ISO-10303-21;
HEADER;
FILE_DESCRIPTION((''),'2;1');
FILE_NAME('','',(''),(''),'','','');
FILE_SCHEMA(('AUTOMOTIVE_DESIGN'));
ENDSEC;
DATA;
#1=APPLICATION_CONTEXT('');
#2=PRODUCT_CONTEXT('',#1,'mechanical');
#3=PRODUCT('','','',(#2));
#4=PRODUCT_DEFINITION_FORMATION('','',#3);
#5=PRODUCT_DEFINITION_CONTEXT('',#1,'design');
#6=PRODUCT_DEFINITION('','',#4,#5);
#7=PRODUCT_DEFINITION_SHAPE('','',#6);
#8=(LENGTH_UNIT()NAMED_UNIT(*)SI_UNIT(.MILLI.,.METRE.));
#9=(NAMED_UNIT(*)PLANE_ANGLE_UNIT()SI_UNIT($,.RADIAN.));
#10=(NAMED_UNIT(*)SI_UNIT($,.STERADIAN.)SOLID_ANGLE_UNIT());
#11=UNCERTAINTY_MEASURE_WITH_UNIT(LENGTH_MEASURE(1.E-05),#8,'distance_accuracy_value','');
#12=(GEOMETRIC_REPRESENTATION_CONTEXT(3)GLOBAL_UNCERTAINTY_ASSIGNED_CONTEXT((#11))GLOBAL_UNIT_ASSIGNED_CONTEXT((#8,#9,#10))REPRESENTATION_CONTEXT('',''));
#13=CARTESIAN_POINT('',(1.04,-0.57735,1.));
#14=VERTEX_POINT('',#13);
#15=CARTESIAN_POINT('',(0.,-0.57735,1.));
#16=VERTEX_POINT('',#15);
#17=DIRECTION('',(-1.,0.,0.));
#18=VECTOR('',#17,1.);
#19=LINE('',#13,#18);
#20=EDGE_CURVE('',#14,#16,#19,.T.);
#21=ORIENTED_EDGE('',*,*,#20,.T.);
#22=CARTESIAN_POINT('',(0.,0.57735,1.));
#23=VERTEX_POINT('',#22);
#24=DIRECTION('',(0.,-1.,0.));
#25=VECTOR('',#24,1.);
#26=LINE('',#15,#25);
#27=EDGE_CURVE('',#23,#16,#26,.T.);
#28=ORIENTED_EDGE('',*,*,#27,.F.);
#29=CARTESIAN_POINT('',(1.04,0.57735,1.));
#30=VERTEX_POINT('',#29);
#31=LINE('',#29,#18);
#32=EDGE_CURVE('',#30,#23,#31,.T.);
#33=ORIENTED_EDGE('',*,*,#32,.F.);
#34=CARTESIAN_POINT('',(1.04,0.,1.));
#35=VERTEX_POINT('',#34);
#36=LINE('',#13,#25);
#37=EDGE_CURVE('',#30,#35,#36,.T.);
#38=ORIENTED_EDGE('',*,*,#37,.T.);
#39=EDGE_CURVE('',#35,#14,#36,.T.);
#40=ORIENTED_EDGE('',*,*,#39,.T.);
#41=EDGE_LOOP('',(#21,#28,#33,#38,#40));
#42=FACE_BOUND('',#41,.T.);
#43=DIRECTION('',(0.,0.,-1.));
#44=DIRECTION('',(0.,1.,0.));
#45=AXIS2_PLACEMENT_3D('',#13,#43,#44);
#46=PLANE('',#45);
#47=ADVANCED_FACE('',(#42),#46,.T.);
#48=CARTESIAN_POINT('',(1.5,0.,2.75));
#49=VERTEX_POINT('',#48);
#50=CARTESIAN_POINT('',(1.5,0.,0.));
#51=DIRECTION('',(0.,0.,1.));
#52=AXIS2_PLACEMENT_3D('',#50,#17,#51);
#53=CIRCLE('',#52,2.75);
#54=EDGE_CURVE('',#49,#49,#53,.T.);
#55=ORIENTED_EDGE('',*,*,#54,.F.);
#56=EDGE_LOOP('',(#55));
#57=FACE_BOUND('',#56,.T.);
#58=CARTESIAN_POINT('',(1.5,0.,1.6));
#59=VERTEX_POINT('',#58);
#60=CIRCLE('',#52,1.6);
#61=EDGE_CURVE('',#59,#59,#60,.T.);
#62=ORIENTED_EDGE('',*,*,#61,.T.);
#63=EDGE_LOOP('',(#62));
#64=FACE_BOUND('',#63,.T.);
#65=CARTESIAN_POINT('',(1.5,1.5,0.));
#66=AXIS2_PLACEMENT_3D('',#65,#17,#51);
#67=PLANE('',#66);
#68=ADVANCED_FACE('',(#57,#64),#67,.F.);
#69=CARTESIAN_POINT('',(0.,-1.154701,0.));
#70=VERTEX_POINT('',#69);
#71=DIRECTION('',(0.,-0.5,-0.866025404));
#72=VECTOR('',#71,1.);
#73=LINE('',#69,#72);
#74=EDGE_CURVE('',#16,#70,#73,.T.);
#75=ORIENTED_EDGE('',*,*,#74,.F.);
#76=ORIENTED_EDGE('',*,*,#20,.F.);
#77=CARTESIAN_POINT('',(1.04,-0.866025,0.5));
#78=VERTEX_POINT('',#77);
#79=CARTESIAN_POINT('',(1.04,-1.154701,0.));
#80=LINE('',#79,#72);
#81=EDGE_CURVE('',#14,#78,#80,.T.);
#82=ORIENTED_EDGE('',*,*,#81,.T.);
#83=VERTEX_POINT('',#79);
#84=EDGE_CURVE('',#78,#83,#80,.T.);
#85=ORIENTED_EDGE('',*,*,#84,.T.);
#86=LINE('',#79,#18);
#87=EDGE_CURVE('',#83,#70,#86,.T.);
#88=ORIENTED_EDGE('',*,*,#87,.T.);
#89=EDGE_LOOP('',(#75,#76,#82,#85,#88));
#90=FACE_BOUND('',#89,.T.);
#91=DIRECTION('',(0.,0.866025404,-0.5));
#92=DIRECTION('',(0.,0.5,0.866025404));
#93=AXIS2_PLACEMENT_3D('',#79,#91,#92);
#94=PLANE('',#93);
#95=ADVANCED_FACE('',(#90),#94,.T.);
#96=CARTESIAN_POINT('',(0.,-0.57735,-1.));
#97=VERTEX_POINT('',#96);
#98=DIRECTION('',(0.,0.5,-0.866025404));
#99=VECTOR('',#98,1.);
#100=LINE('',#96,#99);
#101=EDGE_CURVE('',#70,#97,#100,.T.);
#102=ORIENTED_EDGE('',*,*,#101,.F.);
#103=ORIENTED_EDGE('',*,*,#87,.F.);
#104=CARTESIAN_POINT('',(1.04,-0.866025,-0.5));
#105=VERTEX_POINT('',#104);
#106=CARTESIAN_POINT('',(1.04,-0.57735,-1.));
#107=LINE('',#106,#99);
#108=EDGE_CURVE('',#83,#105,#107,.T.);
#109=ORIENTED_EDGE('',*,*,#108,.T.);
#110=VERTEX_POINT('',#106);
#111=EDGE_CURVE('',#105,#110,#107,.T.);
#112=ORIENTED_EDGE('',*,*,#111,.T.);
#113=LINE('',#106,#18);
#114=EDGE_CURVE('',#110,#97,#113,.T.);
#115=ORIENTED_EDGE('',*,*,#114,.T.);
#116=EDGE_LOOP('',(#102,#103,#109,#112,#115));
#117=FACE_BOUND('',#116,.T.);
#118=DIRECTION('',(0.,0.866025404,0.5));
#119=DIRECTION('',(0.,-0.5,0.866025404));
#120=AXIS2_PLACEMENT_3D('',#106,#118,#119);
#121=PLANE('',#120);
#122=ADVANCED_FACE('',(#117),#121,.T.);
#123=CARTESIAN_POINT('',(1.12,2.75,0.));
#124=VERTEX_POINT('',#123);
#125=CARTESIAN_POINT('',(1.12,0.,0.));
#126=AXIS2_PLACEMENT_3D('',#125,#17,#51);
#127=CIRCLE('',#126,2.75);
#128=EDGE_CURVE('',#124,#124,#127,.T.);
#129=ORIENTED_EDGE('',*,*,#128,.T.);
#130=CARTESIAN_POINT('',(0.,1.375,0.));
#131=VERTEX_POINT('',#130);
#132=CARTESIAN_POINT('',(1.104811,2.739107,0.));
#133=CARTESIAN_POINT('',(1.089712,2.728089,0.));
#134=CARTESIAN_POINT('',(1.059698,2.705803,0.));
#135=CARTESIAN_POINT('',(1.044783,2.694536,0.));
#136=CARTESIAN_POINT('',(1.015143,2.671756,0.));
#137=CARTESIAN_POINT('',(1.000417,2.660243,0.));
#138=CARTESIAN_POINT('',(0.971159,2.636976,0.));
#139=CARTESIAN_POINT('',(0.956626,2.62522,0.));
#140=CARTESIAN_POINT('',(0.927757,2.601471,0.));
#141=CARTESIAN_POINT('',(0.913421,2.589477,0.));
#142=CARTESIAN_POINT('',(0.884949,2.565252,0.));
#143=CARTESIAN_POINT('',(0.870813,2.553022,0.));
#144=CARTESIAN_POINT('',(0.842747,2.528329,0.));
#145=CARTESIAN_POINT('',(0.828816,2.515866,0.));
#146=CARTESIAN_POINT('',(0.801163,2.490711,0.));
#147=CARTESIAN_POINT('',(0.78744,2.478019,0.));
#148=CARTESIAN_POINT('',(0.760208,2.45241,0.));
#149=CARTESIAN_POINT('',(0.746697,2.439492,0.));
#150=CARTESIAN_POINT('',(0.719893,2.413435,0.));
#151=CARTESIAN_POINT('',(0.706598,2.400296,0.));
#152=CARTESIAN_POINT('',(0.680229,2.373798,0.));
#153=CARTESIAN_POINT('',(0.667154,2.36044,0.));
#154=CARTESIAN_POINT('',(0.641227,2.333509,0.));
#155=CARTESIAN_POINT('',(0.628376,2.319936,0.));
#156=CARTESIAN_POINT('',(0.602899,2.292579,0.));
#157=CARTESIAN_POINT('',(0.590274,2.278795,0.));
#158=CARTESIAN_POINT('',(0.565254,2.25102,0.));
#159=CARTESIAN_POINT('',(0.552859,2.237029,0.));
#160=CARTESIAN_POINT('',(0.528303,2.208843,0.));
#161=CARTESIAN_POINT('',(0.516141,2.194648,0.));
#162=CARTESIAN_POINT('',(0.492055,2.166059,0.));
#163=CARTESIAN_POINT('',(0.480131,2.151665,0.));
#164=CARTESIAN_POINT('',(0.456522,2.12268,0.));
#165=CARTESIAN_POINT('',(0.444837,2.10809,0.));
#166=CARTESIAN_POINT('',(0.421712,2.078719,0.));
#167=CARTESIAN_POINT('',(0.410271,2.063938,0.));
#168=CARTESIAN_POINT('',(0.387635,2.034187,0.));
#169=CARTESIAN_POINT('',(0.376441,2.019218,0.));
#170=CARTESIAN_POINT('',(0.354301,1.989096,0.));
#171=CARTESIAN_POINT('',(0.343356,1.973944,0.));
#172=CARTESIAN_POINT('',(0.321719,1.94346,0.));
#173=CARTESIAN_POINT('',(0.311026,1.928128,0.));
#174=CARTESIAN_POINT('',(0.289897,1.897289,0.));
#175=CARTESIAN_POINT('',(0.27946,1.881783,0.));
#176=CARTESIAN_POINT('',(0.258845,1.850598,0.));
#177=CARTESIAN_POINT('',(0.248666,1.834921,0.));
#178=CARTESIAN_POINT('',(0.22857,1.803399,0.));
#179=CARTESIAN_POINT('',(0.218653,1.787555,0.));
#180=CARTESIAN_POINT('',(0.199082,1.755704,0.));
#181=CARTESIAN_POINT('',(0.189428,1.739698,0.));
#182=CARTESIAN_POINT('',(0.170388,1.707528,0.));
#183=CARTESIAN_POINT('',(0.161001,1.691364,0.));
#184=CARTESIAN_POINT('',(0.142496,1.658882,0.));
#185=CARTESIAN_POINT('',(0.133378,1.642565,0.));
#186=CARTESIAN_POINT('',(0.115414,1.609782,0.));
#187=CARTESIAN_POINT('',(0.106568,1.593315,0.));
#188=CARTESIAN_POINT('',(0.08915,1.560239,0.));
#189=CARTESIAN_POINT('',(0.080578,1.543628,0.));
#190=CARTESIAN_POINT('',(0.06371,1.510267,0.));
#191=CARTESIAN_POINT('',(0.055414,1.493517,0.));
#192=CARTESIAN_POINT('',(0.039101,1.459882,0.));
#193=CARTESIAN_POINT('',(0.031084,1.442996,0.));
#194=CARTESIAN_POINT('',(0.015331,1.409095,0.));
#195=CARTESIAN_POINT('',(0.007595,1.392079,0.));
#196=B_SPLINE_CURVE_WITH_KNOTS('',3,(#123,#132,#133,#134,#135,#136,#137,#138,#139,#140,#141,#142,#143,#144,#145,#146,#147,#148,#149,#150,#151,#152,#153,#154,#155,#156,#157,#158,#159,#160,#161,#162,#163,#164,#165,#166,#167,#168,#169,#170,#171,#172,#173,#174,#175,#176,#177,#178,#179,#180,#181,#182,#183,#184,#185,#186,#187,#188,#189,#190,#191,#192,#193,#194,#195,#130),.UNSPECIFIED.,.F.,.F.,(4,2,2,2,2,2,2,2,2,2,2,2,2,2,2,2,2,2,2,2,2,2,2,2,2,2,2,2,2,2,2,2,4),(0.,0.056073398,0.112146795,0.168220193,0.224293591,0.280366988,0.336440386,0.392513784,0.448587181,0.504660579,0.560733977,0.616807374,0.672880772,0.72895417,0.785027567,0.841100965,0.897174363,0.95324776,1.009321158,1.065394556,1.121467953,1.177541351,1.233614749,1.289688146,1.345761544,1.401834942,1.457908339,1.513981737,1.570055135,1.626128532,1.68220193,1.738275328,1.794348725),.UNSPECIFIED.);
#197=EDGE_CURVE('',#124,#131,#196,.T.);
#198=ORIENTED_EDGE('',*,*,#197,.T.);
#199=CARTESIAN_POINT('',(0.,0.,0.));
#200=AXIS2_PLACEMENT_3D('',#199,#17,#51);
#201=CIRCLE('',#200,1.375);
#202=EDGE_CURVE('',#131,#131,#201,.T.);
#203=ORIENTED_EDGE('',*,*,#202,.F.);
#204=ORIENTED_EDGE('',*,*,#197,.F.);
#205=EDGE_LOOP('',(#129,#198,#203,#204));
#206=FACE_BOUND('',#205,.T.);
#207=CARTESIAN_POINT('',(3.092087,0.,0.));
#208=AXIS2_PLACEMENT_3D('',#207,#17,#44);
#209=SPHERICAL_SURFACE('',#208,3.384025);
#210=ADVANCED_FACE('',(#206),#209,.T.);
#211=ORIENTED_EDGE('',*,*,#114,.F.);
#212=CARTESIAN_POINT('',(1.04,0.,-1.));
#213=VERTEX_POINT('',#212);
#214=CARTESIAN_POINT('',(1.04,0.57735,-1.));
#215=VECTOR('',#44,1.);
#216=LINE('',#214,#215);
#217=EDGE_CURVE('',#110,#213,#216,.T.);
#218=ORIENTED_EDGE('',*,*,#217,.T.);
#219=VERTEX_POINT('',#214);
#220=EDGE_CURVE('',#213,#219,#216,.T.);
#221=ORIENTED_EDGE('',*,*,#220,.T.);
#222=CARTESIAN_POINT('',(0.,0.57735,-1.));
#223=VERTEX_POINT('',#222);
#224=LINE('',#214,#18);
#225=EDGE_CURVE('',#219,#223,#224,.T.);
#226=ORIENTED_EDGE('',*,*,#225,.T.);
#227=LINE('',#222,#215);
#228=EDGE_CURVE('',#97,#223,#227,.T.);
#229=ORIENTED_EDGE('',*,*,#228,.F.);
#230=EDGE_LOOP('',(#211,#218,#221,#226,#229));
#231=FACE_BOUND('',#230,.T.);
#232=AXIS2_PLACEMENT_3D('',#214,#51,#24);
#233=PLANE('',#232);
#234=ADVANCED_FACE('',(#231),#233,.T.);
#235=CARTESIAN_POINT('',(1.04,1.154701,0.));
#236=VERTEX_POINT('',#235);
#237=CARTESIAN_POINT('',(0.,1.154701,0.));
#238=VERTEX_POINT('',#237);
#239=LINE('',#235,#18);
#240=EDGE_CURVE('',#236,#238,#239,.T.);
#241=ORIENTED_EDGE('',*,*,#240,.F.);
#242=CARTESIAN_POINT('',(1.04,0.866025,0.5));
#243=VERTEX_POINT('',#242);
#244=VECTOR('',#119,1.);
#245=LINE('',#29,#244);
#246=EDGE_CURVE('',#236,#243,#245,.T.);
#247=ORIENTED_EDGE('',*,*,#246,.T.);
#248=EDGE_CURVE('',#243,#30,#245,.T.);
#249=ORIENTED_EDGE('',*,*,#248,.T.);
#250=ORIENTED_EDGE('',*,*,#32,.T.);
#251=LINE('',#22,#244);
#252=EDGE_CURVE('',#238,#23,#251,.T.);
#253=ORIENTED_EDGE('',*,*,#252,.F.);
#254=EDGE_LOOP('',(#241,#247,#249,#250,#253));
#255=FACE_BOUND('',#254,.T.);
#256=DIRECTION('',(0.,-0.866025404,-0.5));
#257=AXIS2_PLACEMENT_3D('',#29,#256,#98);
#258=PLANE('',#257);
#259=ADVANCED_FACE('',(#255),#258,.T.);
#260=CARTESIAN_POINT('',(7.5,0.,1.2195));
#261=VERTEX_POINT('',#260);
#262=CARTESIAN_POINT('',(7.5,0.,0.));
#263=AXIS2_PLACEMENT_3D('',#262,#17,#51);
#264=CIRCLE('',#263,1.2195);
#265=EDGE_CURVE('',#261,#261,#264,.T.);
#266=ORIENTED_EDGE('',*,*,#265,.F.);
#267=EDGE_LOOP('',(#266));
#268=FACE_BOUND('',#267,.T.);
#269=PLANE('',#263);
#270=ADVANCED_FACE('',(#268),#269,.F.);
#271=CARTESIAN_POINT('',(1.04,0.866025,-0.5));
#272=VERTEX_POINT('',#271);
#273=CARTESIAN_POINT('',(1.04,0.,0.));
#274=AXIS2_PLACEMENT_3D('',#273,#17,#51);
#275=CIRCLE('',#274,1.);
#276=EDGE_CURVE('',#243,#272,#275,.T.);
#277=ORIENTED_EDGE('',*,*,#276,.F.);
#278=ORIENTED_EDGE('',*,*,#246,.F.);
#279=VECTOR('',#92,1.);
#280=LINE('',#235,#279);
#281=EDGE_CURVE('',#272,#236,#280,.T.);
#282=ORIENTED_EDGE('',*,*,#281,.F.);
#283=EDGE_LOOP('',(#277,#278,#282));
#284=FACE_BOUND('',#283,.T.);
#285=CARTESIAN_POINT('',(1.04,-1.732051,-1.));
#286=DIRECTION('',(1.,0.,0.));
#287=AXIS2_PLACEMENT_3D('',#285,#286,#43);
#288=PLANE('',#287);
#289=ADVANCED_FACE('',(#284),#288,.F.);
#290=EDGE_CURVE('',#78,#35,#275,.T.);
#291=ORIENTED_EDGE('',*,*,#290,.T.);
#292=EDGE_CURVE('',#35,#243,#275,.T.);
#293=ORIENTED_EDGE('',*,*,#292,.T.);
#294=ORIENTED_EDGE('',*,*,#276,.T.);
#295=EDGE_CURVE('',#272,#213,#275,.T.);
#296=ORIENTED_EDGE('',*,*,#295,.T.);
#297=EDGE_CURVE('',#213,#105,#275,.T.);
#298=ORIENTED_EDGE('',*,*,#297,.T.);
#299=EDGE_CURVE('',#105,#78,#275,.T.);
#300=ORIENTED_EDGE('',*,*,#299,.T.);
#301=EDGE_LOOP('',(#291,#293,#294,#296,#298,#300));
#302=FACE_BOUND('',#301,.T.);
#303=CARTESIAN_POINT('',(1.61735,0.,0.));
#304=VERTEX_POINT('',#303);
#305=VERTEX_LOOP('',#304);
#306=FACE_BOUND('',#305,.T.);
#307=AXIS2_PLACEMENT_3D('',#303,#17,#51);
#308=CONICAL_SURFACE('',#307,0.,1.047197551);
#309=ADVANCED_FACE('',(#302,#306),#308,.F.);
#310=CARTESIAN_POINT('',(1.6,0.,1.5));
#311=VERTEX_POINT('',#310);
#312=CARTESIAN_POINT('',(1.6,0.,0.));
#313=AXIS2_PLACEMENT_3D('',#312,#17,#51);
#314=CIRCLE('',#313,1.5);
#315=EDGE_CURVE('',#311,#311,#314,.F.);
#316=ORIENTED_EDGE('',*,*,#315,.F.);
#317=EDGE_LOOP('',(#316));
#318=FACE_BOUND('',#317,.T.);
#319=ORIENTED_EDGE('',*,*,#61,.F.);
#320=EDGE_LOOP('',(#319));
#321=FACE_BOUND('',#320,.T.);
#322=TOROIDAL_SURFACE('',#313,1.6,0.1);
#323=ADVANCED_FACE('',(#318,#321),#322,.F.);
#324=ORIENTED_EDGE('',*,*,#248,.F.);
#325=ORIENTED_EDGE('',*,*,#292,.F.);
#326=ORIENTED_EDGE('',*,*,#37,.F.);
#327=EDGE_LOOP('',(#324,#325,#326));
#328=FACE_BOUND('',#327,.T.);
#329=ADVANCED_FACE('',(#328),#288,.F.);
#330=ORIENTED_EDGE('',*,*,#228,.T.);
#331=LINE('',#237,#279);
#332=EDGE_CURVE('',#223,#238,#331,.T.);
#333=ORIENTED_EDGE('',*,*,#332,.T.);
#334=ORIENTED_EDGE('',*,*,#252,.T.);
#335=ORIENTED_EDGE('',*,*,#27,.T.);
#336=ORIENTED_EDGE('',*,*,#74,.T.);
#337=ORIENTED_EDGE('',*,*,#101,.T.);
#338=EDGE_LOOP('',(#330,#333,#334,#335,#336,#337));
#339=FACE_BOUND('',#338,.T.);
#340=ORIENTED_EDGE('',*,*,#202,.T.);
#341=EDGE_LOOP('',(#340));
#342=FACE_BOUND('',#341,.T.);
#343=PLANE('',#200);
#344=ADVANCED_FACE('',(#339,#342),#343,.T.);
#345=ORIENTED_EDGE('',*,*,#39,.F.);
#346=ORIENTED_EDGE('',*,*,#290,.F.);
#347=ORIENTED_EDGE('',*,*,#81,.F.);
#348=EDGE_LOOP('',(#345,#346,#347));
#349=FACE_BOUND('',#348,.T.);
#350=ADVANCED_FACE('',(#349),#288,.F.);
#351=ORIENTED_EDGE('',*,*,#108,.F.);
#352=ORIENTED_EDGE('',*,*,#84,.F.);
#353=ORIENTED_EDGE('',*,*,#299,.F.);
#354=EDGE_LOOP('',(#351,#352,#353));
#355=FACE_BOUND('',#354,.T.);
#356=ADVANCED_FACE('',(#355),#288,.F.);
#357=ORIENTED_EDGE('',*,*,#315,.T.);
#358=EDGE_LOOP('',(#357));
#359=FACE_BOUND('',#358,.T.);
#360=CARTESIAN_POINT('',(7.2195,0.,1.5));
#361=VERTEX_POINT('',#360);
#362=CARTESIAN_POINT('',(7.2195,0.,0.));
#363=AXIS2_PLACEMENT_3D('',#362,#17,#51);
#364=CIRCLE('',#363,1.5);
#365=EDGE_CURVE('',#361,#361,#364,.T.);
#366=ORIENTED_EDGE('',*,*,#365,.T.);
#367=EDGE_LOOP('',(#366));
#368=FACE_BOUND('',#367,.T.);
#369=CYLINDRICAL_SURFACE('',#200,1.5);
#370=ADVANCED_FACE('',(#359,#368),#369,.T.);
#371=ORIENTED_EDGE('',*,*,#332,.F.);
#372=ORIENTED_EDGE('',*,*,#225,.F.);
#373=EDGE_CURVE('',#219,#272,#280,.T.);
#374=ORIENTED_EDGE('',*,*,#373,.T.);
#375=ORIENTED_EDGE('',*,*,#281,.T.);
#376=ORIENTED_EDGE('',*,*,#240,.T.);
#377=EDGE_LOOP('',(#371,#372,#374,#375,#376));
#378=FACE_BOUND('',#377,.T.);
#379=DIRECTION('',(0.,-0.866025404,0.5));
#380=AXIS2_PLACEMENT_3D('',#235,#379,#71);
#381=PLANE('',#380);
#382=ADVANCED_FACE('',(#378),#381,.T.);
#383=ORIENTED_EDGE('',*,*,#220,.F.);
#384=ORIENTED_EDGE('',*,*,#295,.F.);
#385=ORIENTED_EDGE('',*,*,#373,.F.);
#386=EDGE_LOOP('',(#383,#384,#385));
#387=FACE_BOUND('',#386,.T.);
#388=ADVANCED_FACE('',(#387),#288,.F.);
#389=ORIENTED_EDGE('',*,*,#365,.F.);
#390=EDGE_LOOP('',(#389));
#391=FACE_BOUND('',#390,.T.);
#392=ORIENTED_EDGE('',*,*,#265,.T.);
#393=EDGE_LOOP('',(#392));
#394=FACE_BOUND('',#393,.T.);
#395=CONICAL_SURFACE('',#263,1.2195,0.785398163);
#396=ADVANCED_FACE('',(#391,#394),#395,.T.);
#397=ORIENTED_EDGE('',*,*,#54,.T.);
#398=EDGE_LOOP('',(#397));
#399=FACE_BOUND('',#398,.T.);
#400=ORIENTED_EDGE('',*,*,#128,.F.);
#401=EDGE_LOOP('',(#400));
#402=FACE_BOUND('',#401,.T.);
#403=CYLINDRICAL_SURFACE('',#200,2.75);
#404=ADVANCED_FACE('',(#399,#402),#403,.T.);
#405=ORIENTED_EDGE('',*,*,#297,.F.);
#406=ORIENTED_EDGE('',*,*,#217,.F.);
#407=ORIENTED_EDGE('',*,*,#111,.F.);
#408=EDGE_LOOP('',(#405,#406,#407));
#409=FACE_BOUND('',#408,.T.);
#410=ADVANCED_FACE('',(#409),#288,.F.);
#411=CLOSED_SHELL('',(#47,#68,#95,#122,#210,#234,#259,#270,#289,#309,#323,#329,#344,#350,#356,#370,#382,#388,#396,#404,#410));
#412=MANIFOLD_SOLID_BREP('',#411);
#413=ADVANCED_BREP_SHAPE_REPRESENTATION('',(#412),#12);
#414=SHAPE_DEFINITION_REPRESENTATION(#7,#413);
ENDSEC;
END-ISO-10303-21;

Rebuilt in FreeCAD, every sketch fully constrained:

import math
import FreeCAD as App
import Part
import Sketcher
from FreeCAD import Vector
Q = App.Units.Quantity


def edges_at(feature, points):
    """Names of the edges that pass closest to the given points."""
    edges = feature.Shape.Edges
    near = lambda p: min(range(len(edges)), key=lambda i: edges[i].distToShape(Part.Vertex(*p))[0])
    return sorted({f"Edge{near(p) + 1}" for p in points})


def add_polygon(sketch, points):
    """Adds a closed chain of lines whose ends are joined by coincident constraints."""
    first, n = sketch.GeometryCount, len(points)
    for a, b in zip(points, points[1:] + points[:1]):
        sketch.addGeometry(Part.LineSegment(App.Vector(*a, 0), App.Vector(*b, 0)), False)
    for i in range(n):
        sketch.addConstraint(Sketcher.Constraint("Coincident", first + i, 2, first + (i + 1) % n, 1))

doc = App.newDocument("Part")
body = doc.addObject("PartDesign::Body", "Body")

sketch1 = doc.addObject("Sketcher::SketchObject", "Sketch")
body.addObject(sketch1)
sketch1.AttachmentSupport = (doc.XY_Plane, [""])
sketch1.MapMode = "FlatFace"
sketch1.addGeometry([
    Part.LineSegment(Vector(7.5, 0, 0), Vector(7.5, 1.2195, 0)),
    Part.LineSegment(Vector(7.5, 1.2195, 0), Vector(7.2195, 1.5, 0)),
    Part.LineSegment(Vector(7.2195, 1.5, 0), Vector(1.5, 1.5, 0)),
    Part.LineSegment(Vector(1.5, 1.5, 0), Vector(1.5, 2.75, 0)),
    Part.LineSegment(Vector(1.5, 2.75, 0), Vector(1.12, 2.75, 0)),
    Part.ArcOfCircle(Part.Circle(Vector(3.092087, 0, 0), Vector(0, 0, 1), 3.384025), math.radians(125.645161), math.radians(156.026076)),
    Part.LineSegment(Vector(0, 1.375, 0), Vector(0, 0, 0)),
    Part.LineSegment(Vector(0, 0, 0), Vector(7.5, 0, 0)),
], False)
sketch1.addConstraint([
    Sketcher.Constraint("Coincident", 0, 2, 1, 1),
    Sketcher.Constraint("Coincident", 1, 2, 2, 1),
    Sketcher.Constraint("Coincident", 2, 2, 3, 1),
    Sketcher.Constraint("Coincident", 3, 2, 4, 1),
    Sketcher.Constraint("Coincident", 4, 2, 5, 1),
    Sketcher.Constraint("Coincident", 5, 2, 6, 1),
    Sketcher.Constraint("Coincident", 6, 2, 7, 1),
    Sketcher.Constraint("Coincident", 7, 2, 0, 1),
    Sketcher.Constraint("Vertical", 0),
    Sketcher.Constraint("Horizontal", 2),
    Sketcher.Constraint("Vertical", 3),
    Sketcher.Constraint("Horizontal", 4),
    Sketcher.Constraint("Vertical", 6),
    Sketcher.Constraint("Horizontal", 7),
    Sketcher.Constraint("Coincident", 6, 2, -1, 1),
    Sketcher.Constraint("PointOnObject", 5, 3, -1),
    Sketcher.Constraint("Angle", 1, Q("135 deg")),
    Sketcher.Constraint("DistanceX", 7, 1, 7, 2, 7.5),
    Sketcher.Constraint("DistanceX", 2, 2, 0, 2, 6.0),
    Sketcher.Constraint("DistanceX", 4, 2, 4, 1, 0.38),
    Sketcher.Constraint("DistanceY", 3, 1, 3, 2, 1.25),
    Sketcher.Constraint("DistanceY", -1, 1, 1, 2, 1.5),
    Sketcher.Constraint("DistanceY", 6, 2, 6, 1, 1.375),
    Sketcher.Constraint("DistanceX", 2, 2, 2, 1, 5.7195),
])
revolution = doc.addObject("PartDesign::Revolution", "Revolution")
body.addObject(revolution)
revolution.Profile = sketch1
revolution.ReferenceAxis = (sketch1, ["H_Axis"])
revolution.Angle = 360
doc.recompute()

fillet = doc.addObject("PartDesign::Fillet", "Fillet")
body.addObject(fillet)
fillet.Base = (revolution, edges_at(revolution, [(1.5, 0, -1.5)]))
fillet.Radius = 0.1

sketch2 = doc.addObject("Sketcher::SketchObject", "Sketch001")
body.addObject(sketch2)
sketch2.AttachmentSupport = (doc.XY_Plane, [""])
sketch2.MapMode = "FlatFace"
add_polygon(sketch2, [(1.04, 1), (0, 1), (0, 0), (1.61735, 0)])
sketch2.addConstraint([
    Sketcher.Constraint("Horizontal", 0),
    Sketcher.Constraint("Vertical", 1),
    Sketcher.Constraint("Horizontal", 2),
    Sketcher.Constraint("Coincident", 1, 2, -1, 1),
    Sketcher.Constraint("DistanceY", 1, 2, 1, 1, 1.0),
    Sketcher.Constraint("Angle", 3, Q("120 deg")),
    Sketcher.Constraint("DistanceX", 0, 2, 0, 1, 1.04),
])
groove = doc.addObject("PartDesign::Groove", "Groove")
body.addObject(groove)
groove.Profile = sketch2
groove.ReferenceAxis = (sketch2, ["H_Axis"])
groove.Angle = 360

sketch3 = doc.addObject("Sketcher::SketchObject", "Sketch002")
body.addObject(sketch3)
sketch3.AttachmentSupport = (doc.YZ_Plane, [""])
sketch3.MapMode = "FlatFace"
add_polygon(sketch3, [(0.57735, 1), (-0.57735, 1), (-1.154701, 0), (-0.57735, -1), (0.57735, -1), (1.154701, 0)])
sketch3.addConstraint([
    Sketcher.Constraint("Horizontal", 0),
    Sketcher.Constraint("Horizontal", 3),
    Sketcher.Constraint("Symmetric", 0, 2, 3, 2, -1, 1),
    Sketcher.Constraint("Symmetric", 1, 2, 4, 2, -1, 1),
    Sketcher.Constraint("PointOnObject", 1, 2, -1),
    Sketcher.Constraint("Parallel", 2, 5),
    Sketcher.Constraint("Vertical", 0, 2, 2, 2),
    Sketcher.Constraint("Angle", 1, Q("-120 deg")),
    Sketcher.Constraint("DistanceY", -1, 1, 0, 2, 1.0),
    Sketcher.Constraint("DistanceX", 0, 2, 0, 1, 1.154701),
])
pocket1 = doc.addObject("PartDesign::Pocket", "Pocket")
body.addObject(pocket1)
pocket1.Profile = sketch3
pocket1.Length = 1.04
pocket1.Reversed = True

doc.recompute()
